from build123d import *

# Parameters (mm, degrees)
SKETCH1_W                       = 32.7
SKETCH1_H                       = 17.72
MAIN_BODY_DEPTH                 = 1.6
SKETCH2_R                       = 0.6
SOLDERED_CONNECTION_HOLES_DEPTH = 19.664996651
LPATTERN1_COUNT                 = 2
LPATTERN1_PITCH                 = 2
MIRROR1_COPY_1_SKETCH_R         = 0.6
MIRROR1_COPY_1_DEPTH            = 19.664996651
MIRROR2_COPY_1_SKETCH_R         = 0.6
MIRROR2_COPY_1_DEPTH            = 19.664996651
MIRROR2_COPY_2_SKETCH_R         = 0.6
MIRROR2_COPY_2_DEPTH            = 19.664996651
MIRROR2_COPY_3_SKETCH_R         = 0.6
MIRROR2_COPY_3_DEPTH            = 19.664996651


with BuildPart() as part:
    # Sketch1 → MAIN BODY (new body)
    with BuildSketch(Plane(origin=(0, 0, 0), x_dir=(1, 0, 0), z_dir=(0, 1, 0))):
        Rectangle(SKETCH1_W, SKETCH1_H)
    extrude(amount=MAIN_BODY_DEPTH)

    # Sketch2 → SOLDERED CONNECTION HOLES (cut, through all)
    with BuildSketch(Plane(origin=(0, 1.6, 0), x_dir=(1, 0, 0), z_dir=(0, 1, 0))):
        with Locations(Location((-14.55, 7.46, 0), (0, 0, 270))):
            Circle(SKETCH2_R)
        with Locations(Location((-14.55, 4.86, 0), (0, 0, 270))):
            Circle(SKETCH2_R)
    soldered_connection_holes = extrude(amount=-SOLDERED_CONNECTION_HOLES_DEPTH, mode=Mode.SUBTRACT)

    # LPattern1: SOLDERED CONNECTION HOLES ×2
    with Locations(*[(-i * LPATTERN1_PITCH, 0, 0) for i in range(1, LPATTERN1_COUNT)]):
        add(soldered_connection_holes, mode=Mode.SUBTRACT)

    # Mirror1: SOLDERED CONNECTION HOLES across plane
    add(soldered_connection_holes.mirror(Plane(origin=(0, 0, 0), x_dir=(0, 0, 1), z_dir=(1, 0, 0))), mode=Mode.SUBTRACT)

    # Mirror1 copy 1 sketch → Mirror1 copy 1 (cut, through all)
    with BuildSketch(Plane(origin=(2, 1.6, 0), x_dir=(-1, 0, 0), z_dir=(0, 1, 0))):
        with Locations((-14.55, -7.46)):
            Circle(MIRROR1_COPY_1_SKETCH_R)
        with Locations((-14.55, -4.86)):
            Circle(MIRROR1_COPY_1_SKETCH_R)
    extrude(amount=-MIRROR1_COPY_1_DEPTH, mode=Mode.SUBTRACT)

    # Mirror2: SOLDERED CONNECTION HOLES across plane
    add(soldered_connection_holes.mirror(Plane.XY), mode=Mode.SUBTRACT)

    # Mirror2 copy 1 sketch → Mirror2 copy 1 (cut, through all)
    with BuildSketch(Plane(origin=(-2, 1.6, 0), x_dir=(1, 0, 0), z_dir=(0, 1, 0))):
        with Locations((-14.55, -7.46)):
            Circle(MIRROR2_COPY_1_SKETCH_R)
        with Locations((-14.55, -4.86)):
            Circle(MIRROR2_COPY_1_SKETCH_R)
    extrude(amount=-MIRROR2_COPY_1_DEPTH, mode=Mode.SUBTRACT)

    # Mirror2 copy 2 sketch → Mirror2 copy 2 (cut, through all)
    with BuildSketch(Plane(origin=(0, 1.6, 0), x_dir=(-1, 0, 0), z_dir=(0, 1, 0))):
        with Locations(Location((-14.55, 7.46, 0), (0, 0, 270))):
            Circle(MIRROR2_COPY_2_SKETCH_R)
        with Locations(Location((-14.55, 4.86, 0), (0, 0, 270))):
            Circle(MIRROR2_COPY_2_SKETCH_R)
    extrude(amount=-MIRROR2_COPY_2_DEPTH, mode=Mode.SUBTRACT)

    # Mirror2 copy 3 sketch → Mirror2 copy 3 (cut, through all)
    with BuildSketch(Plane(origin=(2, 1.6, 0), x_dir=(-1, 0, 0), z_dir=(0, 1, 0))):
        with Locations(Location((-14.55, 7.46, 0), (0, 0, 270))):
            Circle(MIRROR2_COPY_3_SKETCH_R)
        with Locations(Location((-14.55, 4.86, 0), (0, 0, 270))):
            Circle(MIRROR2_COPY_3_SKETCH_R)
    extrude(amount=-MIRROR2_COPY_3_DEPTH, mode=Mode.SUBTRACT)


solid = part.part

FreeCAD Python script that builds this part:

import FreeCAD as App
import Part
import Sketcher

V = App.Vector
Q = App.Units.Quantity

doc = App.newDocument("Part")
params = doc.addObject("Spreadsheet::Sheet", "Params")
for row, (alias, value) in enumerate([
    ("sketch1_width", "32.7 mm"),
    ("sketch1_height", "17.72 mm"),
    ("pad1_length", "1.6 mm"),
    ("sketch2_diameter", "1.2 mm"),
    ("linearpattern_pitch", "2 mm"),
    ("sketch3_diameter", "1.2 mm"),
    ("sketch4_diameter", "1.2 mm"),
    ("sketch5_diameter", "1.2 mm"),
    ("sketch6_diameter", "1.2 mm"),
], start=1):
    params.set(f"A{row}", alias)
    params.set(f"B{row}", "=" + value)
    params.setAlias(f"B{row}", alias)

body = doc.addObject("PartDesign::Body", "Body")

sketch1 = doc.addObject("Sketcher::SketchObject", "Sketch")
body.addObject(sketch1)
sketch1.AttachmentSupport = (doc.XZ_Plane, [""])
sketch1.MapMode = "FlatFace"
sketch1.addGeometry([
    Part.LineSegment(V(-16, -9, 0), V(-16, 9, 0)),
    Part.LineSegment(V(-16, 9, 0), V(16, 9, 0)),
    Part.LineSegment(V(16, 9, 0), V(16, -9, 0)),
    Part.LineSegment(V(16, -9, 0), V(-16, -9, 0)),
], False)
sketch1.addConstraint([
    Sketcher.Constraint("Coincident", 0, 2, 1, 1),
    Sketcher.Constraint("Coincident", 1, 2, 2, 1),
    Sketcher.Constraint("Coincident", 2, 2, 3, 1),
    Sketcher.Constraint("Coincident", 3, 2, 0, 1),
    Sketcher.Constraint("Vertical", 0),
    Sketcher.Constraint("Horizontal", 1),
    Sketcher.Constraint("Vertical", 2),
    Sketcher.Constraint("Horizontal", 3),
    Sketcher.Constraint("Symmetric", 0, 2, 2, 2, -1, 1),
    Sketcher.Constraint("DistanceX", 1, 1, 1, 2, Q("32.7 mm")),
    Sketcher.Constraint("DistanceY", 0, 1, 0, 2, Q("17.72 mm")),
])
sketch1.setExpression("Constraints[9]", "Params.sketch1_width")
sketch1.setExpression("Constraints[10]", "Params.sketch1_height")
pad1 = doc.addObject("PartDesign::Pad", "Pad")
body.addObject(pad1)
pad1.Profile = sketch1
pad1.setExpression("Length", "Params.pad1_length")
pad1.Reversed = True

sketch2 = doc.addObject("Sketcher::SketchObject", "Sketch001")
body.addObject(sketch2)
sketch2.AttachmentSupport = (doc.XZ_Plane, [""])
sketch2.MapMode = "FlatFace"
sketch2.AttachmentOffset = App.Placement(V(0, 0, -1.6), App.Rotation())
sketch2.addGeometry([
    Part.Circle(V(-14.6, -7.5, 0), V(0, 0, 1), 0.6),
    Part.Circle(V(-14.6, -4.9, 0), V(0, 0, 1), 0.6),
], False)
sketch2.addConstraint([
    Sketcher.Constraint("Equal", 0, 1),
    Sketcher.Constraint("Vertical", 0, 3, 1, 3),
    Sketcher.Constraint("Diameter", 0, Q("1.2 mm")),
    Sketcher.Constraint("DistanceY", 0, 3, 1, 3, Q("2.6 mm")),
    Sketcher.Constraint("DistanceX", 0, 3, -1, 1, Q("14.55 mm")),
    Sketcher.Constraint("DistanceY", 0, 3, -1, 1, Q("7.46 mm")),
])
sketch2.setExpression("Constraints[2]", "Params.sketch2_diameter")
pocket1 = doc.addObject("PartDesign::Pocket", "Pocket")
body.addObject(pocket1)
pocket1.Profile = sketch2
pocket1.Type = "ThroughAll"
pocket1.Reversed = True
doc.recompute()

linearpattern = doc.addObject("PartDesign::LinearPattern", "LinearPattern")
body.addObject(linearpattern)
linearpattern.Originals = [pocket1]
linearpattern.Direction = (doc.X_Axis, [""])
linearpattern.Mode = "offset"
linearpattern.setExpression("Offset", "Params.linearpattern_pitch")
linearpattern.Occurrences = 2
linearpattern.Reversed = True
body.Tip = linearpattern
doc.recompute()

mirrored = doc.addObject("PartDesign::Mirrored", "Mirrored")
body.addObject(mirrored)
mirrored.Originals = [pocket1]
mirrored.MirrorPlane = (doc.YZ_Plane, [""])
body.Tip = mirrored

sketch3 = doc.addObject("Sketcher::SketchObject", "Sketch002")
body.addObject(sketch3)
sketch3.AttachmentSupport = (doc.XZ_Plane, [""])
sketch3.MapMode = "FlatFace"
sketch3.AttachmentOffset = App.Placement(V(0, 0, -1.6), App.Rotation())
sketch3.addGeometry([
    Part.Circle(V(16.6, -7.5, 0), V(0, 0, 1), 0.6),
    Part.Circle(V(16.6, -4.9, 0), V(0, 0, 1), 0.6),
], False)
sketch3.addConstraint([
    Sketcher.Constraint("Equal", 0, 1),
    Sketcher.Constraint("Vertical", 0, 3, 1, 3),
    Sketcher.Constraint("Diameter", 0, Q("1.2 mm")),
    Sketcher.Constraint("DistanceY", 0, 3, 1, 3, Q("2.6 mm")),
    Sketcher.Constraint("DistanceX", -1, 1, 0, 3, Q("16.55 mm")),
    Sketcher.Constraint("DistanceY", 0, 3, -1, 1, Q("7.46 mm")),
])
sketch3.setExpression("Constraints[2]", "Params.sketch3_diameter")
pocket2 = doc.addObject("PartDesign::Pocket", "Pocket001")
body.addObject(pocket2)
pocket2.Profile = sketch3
pocket2.Type = "ThroughAll"
pocket2.Reversed = True
doc.recompute()

mirrored2 = doc.addObject("PartDesign::Mirrored", "Mirrored001")
body.addObject(mirrored2)
mirrored2.Originals = [pocket1]
mirrored2.MirrorPlane = (doc.XY_Plane, [""])
body.Tip = mirrored2

sketch4 = doc.addObject("Sketcher::SketchObject", "Sketch003")
body.addObject(sketch4)
sketch4.AttachmentSupport = (doc.XZ_Plane, [""])
sketch4.MapMode = "FlatFace"
sketch4.AttachmentOffset = App.Placement(V(0, 0, -1.6), App.Rotation())
sketch4.addGeometry([
    Part.Circle(V(-16.6, 7.5, 0), V(0, 0, 1), 0.6),
    Part.Circle(V(-16.6, 4.9, 0), V(0, 0, 1), 0.6),
], False)
sketch4.addConstraint([
    Sketcher.Constraint("Equal", 0, 1),
    Sketcher.Constraint("Vertical", 0, 3, 1, 3),
    Sketcher.Constraint("Diameter", 0, Q("1.2 mm")),
    Sketcher.Constraint("DistanceY", 1, 3, 0, 3, Q("2.6 mm")),
    Sketcher.Constraint("DistanceX", 0, 3, -1, 1, Q("16.55 mm")),
    Sketcher.Constraint("DistanceY", -1, 1, 0, 3, Q("7.46 mm")),
])
sketch4.setExpression("Constraints[2]", "Params.sketch4_diameter")
pocket3 = doc.addObject("PartDesign::Pocket", "Pocket002")
body.addObject(pocket3)
pocket3.Profile = sketch4
pocket3.Type = "ThroughAll"
pocket3.Reversed = True

sketch5 = doc.addObject("Sketcher::SketchObject", "Sketch004")
body.addObject(sketch5)
sketch5.AttachmentSupport = (doc.XZ_Plane, [""])
sketch5.MapMode = "FlatFace"
sketch5.AttachmentOffset = App.Placement(V(0, 0, -1.6), App.Rotation())
sketch5.addGeometry([
    Part.Circle(V(14.6, 7.5, 0), V(0, 0, 1), 0.6),
    Part.Circle(V(14.6, 4.9, 0), V(0, 0, 1), 0.6),
], False)
sketch5.addConstraint([
    Sketcher.Constraint("Equal", 0, 1),
    Sketcher.Constraint("Vertical", 0, 3, 1, 3),
    Sketcher.Constraint("Diameter", 0, Q("1.2 mm")),
    Sketcher.Constraint("DistanceY", 1, 3, 0, 3, Q("2.6 mm")),
    Sketcher.Constraint("DistanceX", -1, 1, 0, 3, Q("14.55 mm")),
    Sketcher.Constraint("DistanceY", -1, 1, 0, 3, Q("7.46 mm")),
])
sketch5.setExpression("Constraints[2]", "Params.sketch5_diameter")
pocket4 = doc.addObject("PartDesign::Pocket", "Pocket003")
body.addObject(pocket4)
pocket4.Profile = sketch5
pocket4.Type = "ThroughAll"
pocket4.Reversed = True

sketch6 = doc.addObject("Sketcher::SketchObject", "Sketch005")
body.addObject(sketch6)
sketch6.AttachmentSupport = (doc.XZ_Plane, [""])
sketch6.MapMode = "FlatFace"
sketch6.AttachmentOffset = App.Placement(V(0, 0, -1.6), App.Rotation())
sketch6.addGeometry([
    Part.Circle(V(16.6, 7.5, 0), V(0, 0, 1), 0.6),
    Part.Circle(V(16.6, 4.9, 0), V(0, 0, 1), 0.6),
], False)
sketch6.addConstraint([
    Sketcher.Constraint("Equal", 0, 1),
    Sketcher.Constraint("Vertical", 0, 3, 1, 3),
    Sketcher.Constraint("Diameter", 0, Q("1.2 mm")),
    Sketcher.Constraint("DistanceY", 1, 3, 0, 3, Q("2.6 mm")),
    Sketcher.Constraint("DistanceX", -1, 1, 0, 3, Q("16.55 mm")),
    Sketcher.Constraint("DistanceY", -1, 1, 0, 3, Q("7.46 mm")),
])
sketch6.setExpression("Constraints[2]", "Params.sketch6_diameter")
pocket5 = doc.addObject("PartDesign::Pocket", "Pocket004")
body.addObject(pocket5)
pocket5.Profile = sketch6
pocket5.Type = "ThroughAll"
pocket5.Reversed = True

doc.recompute()
